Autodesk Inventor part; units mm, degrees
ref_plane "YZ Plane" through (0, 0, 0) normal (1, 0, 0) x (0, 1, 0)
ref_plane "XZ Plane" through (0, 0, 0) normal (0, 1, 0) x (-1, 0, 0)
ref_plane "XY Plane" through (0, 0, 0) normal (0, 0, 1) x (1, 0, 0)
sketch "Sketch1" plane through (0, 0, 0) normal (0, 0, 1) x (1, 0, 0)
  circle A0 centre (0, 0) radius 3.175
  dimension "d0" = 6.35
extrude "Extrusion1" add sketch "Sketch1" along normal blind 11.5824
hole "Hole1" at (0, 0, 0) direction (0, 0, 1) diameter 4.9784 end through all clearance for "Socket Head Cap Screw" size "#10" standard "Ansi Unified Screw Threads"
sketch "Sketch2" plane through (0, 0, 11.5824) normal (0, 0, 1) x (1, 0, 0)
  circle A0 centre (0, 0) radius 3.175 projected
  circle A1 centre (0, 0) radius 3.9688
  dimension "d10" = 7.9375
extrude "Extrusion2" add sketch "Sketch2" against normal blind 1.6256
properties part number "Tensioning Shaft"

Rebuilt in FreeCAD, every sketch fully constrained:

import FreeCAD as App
import Part
import Sketcher
from FreeCAD import Vector
Q = App.Units.Quantity

doc = App.newDocument("Part")
body = doc.addObject("PartDesign::Body", "Body")

sketch1 = doc.addObject("Sketcher::SketchObject", "Sketch")
body.addObject(sketch1)
sketch1.AttachmentSupport = (doc.XY_Plane, [""])
sketch1.MapMode = "FlatFace"
sketch1.addGeometry(Part.Circle(Vector(0, 0, 0), Vector(0, 0, 1), 3.2), False)
sketch1.addConstraint(Sketcher.Constraint("Coincident", 0, 3, -1, 1))
sketch1.addConstraint(Sketcher.Constraint("Diameter", 0, Q("0.25 in")))
pad1 = doc.addObject("PartDesign::Pad", "Pad")
body.addObject(pad1)
pad1.Profile = sketch1
pad1.Length = Q("0.456 in")

sketch2 = doc.addObject("Sketcher::SketchObject", "Sketch001")
body.addObject(sketch2)
sketch2.AttachmentSupport = (doc.XY_Plane, [""])
sketch2.MapMode = "FlatFace"
sketch2.addGeometry(Part.Circle(Vector(0, 0, 0), Vector(0, 0, 1), 2.5), False)
sketch2.addConstraint(Sketcher.Constraint("Coincident", 0, 3, -1, 1))
sketch2.addConstraint(Sketcher.Constraint("Diameter", 0, Q("0.196 in")))
doc.recompute()
hole = doc.addObject("PartDesign::Hole", "Hole")
body.addObject(hole)
hole.Profile = sketch2
hole.ThreadType = "None"
hole.Diameter = Q("0.196 in")
hole.DepthType = "ThroughAll"
hole.Reversed = True

sketch3 = doc.addObject("Sketcher::SketchObject", "Sketch002")
body.addObject(sketch3)
sketch3.AttachmentSupport = (doc.XY_Plane, [""])
sketch3.MapMode = "FlatFace"
sketch3.AttachmentOffset = App.Placement(Vector(0, 0, 0.456 * 25.4), App.Rotation())
sketch3.addGeometry(Part.Circle(Vector(0, 0, 0), Vector(0, 0, 1), 4), False)
sketch3.addGeometry(Part.Circle(Vector(0, 0, 0), Vector(0, 0, 1), 3.2), False)
sketch3.addConstraint(Sketcher.Constraint("Coincident", 0, 3, -1, 1))
sketch3.addConstraint(Sketcher.Constraint("Coincident", 1, 3, -1, 1))
sketch3.addConstraint(Sketcher.Constraint("Diameter", 0, Q("0.3125 in")))
sketch3.addConstraint(Sketcher.Constraint("Diameter", 1, Q("0.25 in")))
pad2 = doc.addObject("PartDesign::Pad", "Pad001")
body.addObject(pad2)
pad2.Profile = sketch3
pad2.Length = Q("0.064 in")
pad2.Reversed = True

doc.recompute()
